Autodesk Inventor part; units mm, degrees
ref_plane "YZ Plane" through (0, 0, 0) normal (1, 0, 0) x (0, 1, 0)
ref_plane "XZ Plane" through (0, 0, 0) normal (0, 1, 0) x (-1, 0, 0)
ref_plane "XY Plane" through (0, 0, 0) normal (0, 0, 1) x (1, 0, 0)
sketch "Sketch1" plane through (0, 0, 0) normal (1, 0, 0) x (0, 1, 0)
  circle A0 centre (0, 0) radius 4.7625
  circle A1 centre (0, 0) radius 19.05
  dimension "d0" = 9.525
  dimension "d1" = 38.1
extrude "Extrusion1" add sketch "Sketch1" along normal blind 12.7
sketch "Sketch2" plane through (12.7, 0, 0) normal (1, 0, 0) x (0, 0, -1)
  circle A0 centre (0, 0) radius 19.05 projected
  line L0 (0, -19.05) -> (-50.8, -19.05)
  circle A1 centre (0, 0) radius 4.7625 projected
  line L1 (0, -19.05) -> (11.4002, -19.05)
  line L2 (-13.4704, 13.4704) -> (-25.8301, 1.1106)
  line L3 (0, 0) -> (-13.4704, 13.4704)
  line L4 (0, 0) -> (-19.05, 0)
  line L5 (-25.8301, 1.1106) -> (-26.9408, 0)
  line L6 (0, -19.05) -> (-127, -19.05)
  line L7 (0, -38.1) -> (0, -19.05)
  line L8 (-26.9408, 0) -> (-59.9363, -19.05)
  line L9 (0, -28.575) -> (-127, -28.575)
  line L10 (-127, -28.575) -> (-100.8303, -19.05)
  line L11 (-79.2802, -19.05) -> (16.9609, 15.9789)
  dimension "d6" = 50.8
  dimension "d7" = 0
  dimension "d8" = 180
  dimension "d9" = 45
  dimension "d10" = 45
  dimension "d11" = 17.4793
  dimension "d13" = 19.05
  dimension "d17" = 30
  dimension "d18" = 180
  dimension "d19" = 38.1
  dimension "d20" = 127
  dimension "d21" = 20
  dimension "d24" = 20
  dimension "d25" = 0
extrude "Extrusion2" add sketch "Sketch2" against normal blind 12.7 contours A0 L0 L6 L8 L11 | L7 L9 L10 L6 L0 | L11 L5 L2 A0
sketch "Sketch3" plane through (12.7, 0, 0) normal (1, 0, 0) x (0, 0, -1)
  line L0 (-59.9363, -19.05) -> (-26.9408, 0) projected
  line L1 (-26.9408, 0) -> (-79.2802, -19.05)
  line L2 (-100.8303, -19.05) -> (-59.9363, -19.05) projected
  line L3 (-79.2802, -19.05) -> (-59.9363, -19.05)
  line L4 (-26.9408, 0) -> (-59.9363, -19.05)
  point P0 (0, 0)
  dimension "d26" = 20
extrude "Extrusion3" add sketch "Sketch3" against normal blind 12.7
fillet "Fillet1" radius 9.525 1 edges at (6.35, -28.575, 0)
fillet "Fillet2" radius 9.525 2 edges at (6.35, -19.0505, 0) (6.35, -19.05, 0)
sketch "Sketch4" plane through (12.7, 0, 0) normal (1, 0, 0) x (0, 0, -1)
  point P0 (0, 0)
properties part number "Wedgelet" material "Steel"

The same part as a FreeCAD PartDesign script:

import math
import FreeCAD as App
import Part
import Sketcher

V = App.Vector
Q = App.Units.Quantity


def edges_at(feature, points):
    """Names of the edges that pass closest to the given points."""
    edges = feature.Shape.Edges
    near = lambda p: min(range(len(edges)), key=lambda i: edges[i].distToShape(Part.Vertex(*p))[0])
    return sorted({f"Edge{near(p) + 1}" for p in points})

doc = App.newDocument("Part")
body = doc.addObject("PartDesign::Body", "Body")

# Sketch on YZ plane
sketch1 = body.newObject("Sketcher::SketchObject", "Sketch")
sketch1.AttachmentSupport = (doc.getObject("YZ_Plane"), [""])
sketch1.MapMode = "FlatFace"
sketch1.addGeometry([
    Part.Circle(V(0, 0, 0), V(0, 0, 1), 19.05),
    Part.Circle(V(0, 0, 0), V(0, 0, 1), 4.7625),
], False)
sketch1.addConstraint([
    Sketcher.Constraint("Coincident", 0, 3, -1, 1),
    Sketcher.Constraint("Coincident", 1, 3, -1, 1),
    Sketcher.Constraint("Diameter", 0, Q("1.5 in")),
    Sketcher.Constraint("Diameter", 1, Q("0.375 in")),
])
pad1 = body.newObject("PartDesign::Pad", "Pad")
pad1.Profile = sketch1
pad1.Length = Q("0.5 in")

# Sketch on YZ plane
sketch2 = body.newObject("Sketcher::SketchObject", "Sketch001")
sketch2.AttachmentSupport = (doc.getObject("YZ_Plane"), [""])
sketch2.MapMode = "FlatFace"
sketch2.AttachmentOffset = App.Placement(V(0, 0, 0.5 * 25.4), App.Rotation())
sketch2.addGeometry([
    Part.ArcOfCircle(Part.Circle(V(0, 0, 0), V(0, 0, 1), 19.05), math.radians(45), math.radians(180)),  # 0
    Part.LineSegment(V(13.4704, 13.4704, 0), V(1.1106, 25.8301, 0)),  # 1
    Part.LineSegment(V(1.1106, 25.8301, 0), V(0, 26.9408, 0)),  # 2
    Part.LineSegment(V(0, 26.9408, 0), V(-19.05, 59.9363, 0)),  # 3
    Part.LineSegment(V(-19.05, 59.9363, 0), V(-19.05, 100.8303, 0)),  # 4
    Part.LineSegment(V(-19.05, 100.8303, 0), V(-28.575, 127, 0)),  # 5
    Part.LineSegment(V(-28.575, 127, 0), V(-28.575, 0, 0)),  # 6
    Part.LineSegment(V(-28.575, 0, 0), V(-19.05, 0, 0)),  # 7
], False)
sketch2.addConstraint([
    Sketcher.Constraint("Tangent", 0, 1, 1, 1),
    Sketcher.Constraint("Coincident", 1, 2, 2, 1),
    Sketcher.Constraint("Coincident", 2, 2, 3, 1),
    Sketcher.Constraint("Coincident", 3, 2, 4, 1),
    Sketcher.Constraint("Coincident", 4, 2, 5, 1),
    Sketcher.Constraint("Coincident", 5, 2, 6, 1),
    Sketcher.Constraint("Coincident", 6, 2, 7, 1),
    Sketcher.Constraint("Coincident", 7, 2, 0, 2),
    Sketcher.Constraint("Vertical", 4),
    Sketcher.Constraint("Vertical", 6),
    Sketcher.Constraint("Horizontal", 7),
    Sketcher.Constraint("Coincident", 0, 3, -1, 1),
    Sketcher.Constraint("PointOnObject", 2, 2, -2),
    Sketcher.Constraint("PointOnObject", 6, 2, -1),
    Sketcher.Constraint("Parallel", 1, 2),
    Sketcher.Constraint("Vertical", 4, 2, 7, 2),
    Sketcher.Constraint("DistanceY", 6, 2, 6, 1, Q("5 in")),
    Sketcher.Constraint("Radius", 0, Q("0.75 in")),
    Sketcher.Constraint("Distance", 3, Q("1.5 in")),
    Sketcher.Constraint("Angle", 1, Q("135.0002 deg")),
    Sketcher.Constraint("Angle", 5, Q("110 deg")),
    Sketcher.Constraint("DistanceY", 4, 1, 4, 2, Q("1.61 in")),
    Sketcher.Constraint("Distance", 1, 17.4793),
])
pad2 = body.newObject("PartDesign::Pad", "Pad001")
pad2.Profile = sketch2
pad2.Length = Q("0.5 in")
pad2.Reversed = True

# Sketch on YZ plane
sketch3 = body.newObject("Sketcher::SketchObject", "Sketch002")
sketch3.AttachmentSupport = (doc.getObject("YZ_Plane"), [""])
sketch3.MapMode = "FlatFace"
sketch3.AttachmentOffset = App.Placement(V(0, 0, 0.5 * 25.4), App.Rotation())
sketch3.addGeometry([
    Part.LineSegment(V(-19.05, 79.2802, 0), V(-19.05, 59.9363, 0)),
    Part.LineSegment(V(-19.05, 59.9363, 0), V(0, 26.9408, 0)),
    Part.LineSegment(V(0, 26.9408, 0), V(-19.05, 79.2802, 0)),
], False)
sketch3.addConstraint([
    Sketcher.Constraint("Coincident", 0, 2, 1, 1),
    Sketcher.Constraint("Coincident", 1, 2, 2, 1),
    Sketcher.Constraint("Coincident", 2, 2, 0, 1),
    Sketcher.Constraint("Vertical", 0),
    Sketcher.Constraint("PointOnObject", 1, 2, -2),
    Sketcher.Constraint("Angle", 1, Q("-60 deg")),
    Sketcher.Constraint("Angle", 2, Q("110 deg")),
    Sketcher.Constraint("Distance", 1, Q("1.5 in")),
    Sketcher.Constraint("DistanceY", -1, 1, 0, 2, Q("2.3597 in")),
])
pad3 = body.newObject("PartDesign::Pad", "Pad002")
pad3.Profile = sketch3
pad3.Length = Q("0.5 in")
pad3.Reversed = True
doc.recompute()

fillet = body.newObject("PartDesign::Fillet", "Fillet")
fillet.Base = (pad3, edges_at(pad3, [(6.35, -28.575, 0)]))
fillet.Radius = Q("0.375 in")
doc.recompute()

fillet2 = body.newObject("PartDesign::Fillet", "Fillet001")
fillet2.Base = (fillet, edges_at(fillet, [(6.35, -19.05, 0), (6.35, -19.05, 0)]))
fillet2.Radius = Q("0.375 in")

doc.recompute()
